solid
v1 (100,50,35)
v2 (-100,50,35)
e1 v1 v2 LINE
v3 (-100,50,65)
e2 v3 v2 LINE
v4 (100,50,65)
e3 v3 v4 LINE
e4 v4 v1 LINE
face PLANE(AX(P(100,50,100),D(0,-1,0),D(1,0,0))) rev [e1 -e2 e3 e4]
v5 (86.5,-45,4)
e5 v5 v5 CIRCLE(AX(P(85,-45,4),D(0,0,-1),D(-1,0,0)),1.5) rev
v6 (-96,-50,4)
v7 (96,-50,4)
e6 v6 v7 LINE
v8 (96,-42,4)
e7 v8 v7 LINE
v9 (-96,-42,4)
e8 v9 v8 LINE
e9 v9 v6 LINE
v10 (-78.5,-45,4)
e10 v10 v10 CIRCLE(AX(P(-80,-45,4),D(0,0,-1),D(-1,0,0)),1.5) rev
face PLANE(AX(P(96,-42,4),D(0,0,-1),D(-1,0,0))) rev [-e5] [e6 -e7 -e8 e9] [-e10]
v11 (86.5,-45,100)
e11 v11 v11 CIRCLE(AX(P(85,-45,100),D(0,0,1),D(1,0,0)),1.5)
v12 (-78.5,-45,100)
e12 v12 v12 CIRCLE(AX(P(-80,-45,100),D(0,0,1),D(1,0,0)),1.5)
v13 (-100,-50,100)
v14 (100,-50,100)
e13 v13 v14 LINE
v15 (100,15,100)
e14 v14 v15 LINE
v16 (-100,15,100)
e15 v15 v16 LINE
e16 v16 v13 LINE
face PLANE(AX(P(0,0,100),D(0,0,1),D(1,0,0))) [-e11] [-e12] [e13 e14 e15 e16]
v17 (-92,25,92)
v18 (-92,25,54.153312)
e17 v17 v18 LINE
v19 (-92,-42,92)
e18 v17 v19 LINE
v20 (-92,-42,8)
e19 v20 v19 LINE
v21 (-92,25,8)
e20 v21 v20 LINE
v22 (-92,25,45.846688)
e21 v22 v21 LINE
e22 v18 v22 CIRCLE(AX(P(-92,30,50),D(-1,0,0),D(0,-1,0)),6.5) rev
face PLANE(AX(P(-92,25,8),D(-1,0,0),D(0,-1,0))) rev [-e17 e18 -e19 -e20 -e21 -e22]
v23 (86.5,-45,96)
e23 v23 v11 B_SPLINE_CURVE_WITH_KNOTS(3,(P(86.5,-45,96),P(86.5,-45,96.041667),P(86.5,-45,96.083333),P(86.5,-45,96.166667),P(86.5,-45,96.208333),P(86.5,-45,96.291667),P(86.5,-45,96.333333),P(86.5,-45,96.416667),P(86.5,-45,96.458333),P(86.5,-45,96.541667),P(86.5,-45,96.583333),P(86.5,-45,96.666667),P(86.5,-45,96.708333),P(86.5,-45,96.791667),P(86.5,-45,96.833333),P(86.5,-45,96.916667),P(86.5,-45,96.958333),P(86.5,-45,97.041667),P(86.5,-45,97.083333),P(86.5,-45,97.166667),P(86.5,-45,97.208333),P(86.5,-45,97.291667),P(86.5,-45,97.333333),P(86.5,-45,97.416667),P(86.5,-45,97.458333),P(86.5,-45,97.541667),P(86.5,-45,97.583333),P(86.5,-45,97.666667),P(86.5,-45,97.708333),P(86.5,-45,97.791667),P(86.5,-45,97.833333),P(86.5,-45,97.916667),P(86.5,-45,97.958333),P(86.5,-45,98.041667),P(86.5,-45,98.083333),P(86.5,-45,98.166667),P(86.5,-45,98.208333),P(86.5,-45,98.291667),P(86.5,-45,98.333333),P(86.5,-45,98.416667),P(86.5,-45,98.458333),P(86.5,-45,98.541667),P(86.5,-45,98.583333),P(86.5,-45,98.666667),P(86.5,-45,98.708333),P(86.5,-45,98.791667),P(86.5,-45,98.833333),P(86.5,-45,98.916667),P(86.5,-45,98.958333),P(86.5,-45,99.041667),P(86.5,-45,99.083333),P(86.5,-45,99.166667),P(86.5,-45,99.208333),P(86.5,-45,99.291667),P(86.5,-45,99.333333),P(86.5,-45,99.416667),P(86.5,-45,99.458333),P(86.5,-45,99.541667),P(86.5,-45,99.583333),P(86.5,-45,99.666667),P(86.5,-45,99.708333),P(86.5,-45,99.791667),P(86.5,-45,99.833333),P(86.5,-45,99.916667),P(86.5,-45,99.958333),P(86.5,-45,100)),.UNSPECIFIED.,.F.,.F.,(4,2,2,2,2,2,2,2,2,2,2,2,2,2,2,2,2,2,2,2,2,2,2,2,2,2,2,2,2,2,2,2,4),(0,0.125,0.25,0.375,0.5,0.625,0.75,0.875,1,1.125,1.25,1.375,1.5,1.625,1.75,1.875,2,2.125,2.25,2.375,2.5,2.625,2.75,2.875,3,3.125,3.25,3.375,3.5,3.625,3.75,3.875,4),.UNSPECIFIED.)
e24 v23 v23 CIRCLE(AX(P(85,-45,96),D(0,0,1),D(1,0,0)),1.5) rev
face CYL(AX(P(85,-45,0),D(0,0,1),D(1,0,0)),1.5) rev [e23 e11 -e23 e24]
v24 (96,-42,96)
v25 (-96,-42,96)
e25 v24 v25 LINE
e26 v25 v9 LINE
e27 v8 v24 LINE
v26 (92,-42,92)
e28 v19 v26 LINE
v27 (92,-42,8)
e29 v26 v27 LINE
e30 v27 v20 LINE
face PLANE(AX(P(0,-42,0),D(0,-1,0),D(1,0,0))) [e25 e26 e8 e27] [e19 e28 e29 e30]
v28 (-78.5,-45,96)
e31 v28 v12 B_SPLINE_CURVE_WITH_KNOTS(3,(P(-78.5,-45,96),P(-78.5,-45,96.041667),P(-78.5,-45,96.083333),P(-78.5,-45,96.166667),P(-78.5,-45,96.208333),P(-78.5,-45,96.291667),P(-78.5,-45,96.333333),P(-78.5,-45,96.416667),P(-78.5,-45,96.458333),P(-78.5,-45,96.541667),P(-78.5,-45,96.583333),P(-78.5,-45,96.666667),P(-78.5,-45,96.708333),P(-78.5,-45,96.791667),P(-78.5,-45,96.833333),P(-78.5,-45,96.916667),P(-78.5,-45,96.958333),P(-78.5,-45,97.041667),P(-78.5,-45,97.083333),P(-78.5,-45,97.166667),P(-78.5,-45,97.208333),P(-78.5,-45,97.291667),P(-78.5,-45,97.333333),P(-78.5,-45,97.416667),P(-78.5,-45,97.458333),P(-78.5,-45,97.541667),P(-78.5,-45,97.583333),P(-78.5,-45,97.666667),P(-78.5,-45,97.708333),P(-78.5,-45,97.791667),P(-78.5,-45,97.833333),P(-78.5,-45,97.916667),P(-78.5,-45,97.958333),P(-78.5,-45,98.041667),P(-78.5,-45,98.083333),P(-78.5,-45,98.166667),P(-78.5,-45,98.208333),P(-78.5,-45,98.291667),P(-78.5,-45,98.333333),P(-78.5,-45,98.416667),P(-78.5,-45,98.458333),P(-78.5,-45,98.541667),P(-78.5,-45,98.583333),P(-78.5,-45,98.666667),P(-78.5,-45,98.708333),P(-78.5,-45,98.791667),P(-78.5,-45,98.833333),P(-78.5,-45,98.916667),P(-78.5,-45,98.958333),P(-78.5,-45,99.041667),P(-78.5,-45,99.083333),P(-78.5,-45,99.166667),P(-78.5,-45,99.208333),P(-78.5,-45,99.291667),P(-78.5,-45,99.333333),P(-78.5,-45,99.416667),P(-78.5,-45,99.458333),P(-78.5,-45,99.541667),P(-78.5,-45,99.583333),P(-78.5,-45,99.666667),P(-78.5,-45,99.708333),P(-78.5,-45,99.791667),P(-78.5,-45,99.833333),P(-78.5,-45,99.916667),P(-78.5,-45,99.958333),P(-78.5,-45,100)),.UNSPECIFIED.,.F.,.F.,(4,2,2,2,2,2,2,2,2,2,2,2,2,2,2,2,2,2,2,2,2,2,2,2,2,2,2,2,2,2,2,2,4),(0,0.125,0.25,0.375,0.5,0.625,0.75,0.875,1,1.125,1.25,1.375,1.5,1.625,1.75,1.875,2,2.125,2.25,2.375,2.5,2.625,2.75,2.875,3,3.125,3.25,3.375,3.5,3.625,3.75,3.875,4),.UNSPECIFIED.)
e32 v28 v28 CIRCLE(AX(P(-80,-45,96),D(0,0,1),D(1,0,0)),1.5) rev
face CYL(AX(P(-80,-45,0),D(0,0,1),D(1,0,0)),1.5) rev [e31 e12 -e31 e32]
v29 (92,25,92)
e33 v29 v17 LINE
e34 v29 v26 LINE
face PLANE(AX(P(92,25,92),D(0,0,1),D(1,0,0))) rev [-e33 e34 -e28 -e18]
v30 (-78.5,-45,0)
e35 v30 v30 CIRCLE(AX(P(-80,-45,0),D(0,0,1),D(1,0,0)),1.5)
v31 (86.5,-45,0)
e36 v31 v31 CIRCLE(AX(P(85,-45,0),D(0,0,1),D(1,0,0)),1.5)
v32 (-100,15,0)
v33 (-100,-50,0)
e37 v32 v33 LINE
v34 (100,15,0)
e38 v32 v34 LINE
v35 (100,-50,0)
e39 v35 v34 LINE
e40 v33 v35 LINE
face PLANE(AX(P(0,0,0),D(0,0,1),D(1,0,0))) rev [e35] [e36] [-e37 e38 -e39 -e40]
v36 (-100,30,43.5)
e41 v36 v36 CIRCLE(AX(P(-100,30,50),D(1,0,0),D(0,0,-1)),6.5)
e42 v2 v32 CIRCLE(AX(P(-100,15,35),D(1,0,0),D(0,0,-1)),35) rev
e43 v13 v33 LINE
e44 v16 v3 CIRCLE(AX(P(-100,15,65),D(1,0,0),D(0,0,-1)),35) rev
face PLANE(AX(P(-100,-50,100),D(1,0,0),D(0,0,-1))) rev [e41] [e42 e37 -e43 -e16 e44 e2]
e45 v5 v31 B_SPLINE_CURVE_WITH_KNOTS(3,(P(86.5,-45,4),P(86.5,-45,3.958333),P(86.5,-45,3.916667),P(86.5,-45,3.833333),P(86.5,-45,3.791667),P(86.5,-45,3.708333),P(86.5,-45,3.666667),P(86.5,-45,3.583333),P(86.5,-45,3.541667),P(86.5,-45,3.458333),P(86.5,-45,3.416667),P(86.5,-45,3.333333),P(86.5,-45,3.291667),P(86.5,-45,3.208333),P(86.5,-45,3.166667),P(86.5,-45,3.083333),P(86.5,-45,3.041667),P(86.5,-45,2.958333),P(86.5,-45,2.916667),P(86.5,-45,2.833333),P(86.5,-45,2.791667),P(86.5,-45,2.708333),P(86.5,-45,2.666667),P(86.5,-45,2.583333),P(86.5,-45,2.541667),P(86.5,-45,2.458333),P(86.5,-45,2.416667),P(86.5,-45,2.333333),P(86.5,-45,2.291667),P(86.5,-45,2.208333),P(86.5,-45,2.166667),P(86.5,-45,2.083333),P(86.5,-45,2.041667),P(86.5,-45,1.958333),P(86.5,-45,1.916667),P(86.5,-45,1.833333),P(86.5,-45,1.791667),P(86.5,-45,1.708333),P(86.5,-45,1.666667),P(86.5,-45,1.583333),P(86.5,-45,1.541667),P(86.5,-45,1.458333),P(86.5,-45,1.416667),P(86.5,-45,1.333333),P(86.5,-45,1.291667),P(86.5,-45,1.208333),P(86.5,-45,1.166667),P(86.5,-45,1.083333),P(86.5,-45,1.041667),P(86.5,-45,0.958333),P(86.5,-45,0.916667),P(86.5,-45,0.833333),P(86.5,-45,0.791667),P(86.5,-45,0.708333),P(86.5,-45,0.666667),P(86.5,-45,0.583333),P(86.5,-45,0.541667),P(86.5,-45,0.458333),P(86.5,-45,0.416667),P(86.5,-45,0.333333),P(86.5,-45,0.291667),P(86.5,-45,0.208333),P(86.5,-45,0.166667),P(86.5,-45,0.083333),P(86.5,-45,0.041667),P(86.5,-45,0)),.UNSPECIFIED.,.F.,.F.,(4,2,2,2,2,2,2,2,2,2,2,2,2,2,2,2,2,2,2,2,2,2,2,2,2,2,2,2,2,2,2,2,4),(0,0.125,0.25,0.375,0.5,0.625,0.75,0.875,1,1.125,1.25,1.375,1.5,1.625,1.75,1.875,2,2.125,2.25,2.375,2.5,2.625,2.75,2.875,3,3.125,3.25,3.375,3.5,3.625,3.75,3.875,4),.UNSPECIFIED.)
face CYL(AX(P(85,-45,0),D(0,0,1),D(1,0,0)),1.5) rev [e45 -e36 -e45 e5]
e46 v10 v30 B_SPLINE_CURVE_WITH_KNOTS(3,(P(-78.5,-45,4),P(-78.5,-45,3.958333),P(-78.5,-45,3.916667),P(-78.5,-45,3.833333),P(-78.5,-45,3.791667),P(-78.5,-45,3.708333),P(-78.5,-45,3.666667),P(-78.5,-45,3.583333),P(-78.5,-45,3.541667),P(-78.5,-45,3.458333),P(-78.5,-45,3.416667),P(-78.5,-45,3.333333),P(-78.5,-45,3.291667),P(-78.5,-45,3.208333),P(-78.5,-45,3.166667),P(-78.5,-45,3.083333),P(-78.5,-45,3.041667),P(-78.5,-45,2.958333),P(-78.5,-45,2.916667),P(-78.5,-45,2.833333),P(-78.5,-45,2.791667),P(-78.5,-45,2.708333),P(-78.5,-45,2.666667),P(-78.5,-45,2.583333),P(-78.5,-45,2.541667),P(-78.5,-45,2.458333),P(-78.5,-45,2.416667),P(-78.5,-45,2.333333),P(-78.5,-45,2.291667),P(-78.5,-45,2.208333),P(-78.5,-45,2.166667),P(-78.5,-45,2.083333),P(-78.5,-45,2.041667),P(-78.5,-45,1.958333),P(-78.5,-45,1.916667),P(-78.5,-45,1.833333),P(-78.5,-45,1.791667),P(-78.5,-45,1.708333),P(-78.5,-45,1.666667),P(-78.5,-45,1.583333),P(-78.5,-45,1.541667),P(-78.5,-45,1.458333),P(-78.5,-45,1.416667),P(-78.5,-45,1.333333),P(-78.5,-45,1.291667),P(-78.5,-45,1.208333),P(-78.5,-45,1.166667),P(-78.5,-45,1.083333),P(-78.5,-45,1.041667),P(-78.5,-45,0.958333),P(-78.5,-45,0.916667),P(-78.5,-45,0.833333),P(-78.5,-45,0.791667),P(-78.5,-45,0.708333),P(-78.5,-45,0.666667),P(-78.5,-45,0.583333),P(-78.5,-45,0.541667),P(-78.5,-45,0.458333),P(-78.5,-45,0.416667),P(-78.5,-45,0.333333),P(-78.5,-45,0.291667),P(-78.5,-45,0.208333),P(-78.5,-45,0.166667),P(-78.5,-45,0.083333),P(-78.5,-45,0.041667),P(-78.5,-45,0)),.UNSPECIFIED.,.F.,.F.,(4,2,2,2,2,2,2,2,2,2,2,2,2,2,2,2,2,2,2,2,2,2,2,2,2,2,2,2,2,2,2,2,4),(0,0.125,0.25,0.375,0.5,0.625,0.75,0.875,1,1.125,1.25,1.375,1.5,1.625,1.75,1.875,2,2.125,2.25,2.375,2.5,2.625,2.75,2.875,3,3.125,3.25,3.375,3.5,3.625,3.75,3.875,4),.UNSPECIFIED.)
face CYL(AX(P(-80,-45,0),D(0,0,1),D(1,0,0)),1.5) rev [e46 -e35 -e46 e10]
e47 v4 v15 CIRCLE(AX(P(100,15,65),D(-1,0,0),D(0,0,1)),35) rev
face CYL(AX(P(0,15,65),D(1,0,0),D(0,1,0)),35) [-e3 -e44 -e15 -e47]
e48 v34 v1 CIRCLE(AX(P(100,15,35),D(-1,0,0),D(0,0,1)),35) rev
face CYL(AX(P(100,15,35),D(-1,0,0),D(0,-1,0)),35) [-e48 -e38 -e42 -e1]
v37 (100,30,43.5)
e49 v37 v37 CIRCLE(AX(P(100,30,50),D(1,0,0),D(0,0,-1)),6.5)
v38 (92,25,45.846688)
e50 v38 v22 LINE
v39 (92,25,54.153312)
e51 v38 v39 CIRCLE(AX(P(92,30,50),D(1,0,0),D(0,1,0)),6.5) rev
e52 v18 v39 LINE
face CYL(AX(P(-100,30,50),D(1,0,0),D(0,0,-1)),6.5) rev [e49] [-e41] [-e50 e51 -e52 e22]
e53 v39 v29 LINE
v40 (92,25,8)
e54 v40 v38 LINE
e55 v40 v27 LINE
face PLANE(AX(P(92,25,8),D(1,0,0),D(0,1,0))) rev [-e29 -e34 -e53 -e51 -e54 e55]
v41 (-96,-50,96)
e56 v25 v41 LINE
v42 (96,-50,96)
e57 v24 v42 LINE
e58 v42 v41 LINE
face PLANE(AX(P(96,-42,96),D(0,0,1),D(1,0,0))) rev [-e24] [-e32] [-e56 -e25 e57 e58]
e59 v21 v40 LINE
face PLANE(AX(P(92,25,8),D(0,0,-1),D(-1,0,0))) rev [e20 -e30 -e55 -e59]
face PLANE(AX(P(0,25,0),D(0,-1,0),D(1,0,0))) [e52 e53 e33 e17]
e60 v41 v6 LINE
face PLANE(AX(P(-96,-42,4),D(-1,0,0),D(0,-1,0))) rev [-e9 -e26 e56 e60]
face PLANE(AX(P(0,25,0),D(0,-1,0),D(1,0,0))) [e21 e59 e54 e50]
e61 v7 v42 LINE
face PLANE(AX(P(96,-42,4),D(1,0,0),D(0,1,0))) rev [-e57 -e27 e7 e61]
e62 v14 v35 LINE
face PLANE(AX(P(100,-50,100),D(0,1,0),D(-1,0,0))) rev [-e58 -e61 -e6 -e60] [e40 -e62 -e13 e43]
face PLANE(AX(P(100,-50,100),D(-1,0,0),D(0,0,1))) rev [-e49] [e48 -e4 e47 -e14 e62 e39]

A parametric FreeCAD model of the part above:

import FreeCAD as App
import Part
import Sketcher
from FreeCAD import Vector
Q = App.Units.Quantity


def edges_at(feature, points):
    """Names of the edges that pass closest to the given points."""
    edges = feature.Shape.Edges
    near = lambda p: min(range(len(edges)), key=lambda i: edges[i].distToShape(Part.Vertex(*p))[0])
    return sorted({f"Edge{near(p) + 1}" for p in points})

doc = App.newDocument("Part")
body = doc.addObject("PartDesign::Body", "Body")

sketch1 = body.newObject("Sketcher::SketchObject", "Sketch")
sketch1.AttachmentSupport = (doc.getObject("XY_Plane"), [""])
sketch1.MapMode = "FlatFace"
sketch1.addGeometry([
    Part.LineSegment(Vector(-100, 50, 0), Vector(-100, -50, 0)),
    Part.LineSegment(Vector(-100, -50, 0), Vector(100, -50, 0)),
    Part.LineSegment(Vector(100, -50, 0), Vector(100, 50, 0)),
    Part.LineSegment(Vector(100, 50, 0), Vector(-100, 50, 0)),
], False)
sketch1.addConstraint([
    Sketcher.Constraint("Coincident", 0, 2, 1, 1),
    Sketcher.Constraint("Coincident", 1, 2, 2, 1),
    Sketcher.Constraint("Coincident", 2, 2, 3, 1),
    Sketcher.Constraint("Coincident", 3, 2, 0, 1),
    Sketcher.Constraint("Vertical", 0),
    Sketcher.Constraint("Horizontal", 1),
    Sketcher.Constraint("Vertical", 2),
    Sketcher.Constraint("Horizontal", 3),
    Sketcher.Constraint("Symmetric", 0, 2, 2, 2, -1, 1),
    Sketcher.Constraint("DistanceX", 1, 1, 1, 2, Q("200 mm")),
    Sketcher.Constraint("DistanceY", 0, 2, 0, 1, Q("100 mm")),
])
pad1 = body.newObject("PartDesign::Pad", "Pad")
pad1.Profile = sketch1
pad1.Length = 100

sketch2 = body.newObject("Sketcher::SketchObject", "Sketch001")
sketch2.AttachmentSupport = (doc.getObject("YZ_Plane"), [""])
sketch2.MapMode = "FlatFace"
sketch2.AttachmentOffset = App.Placement(Vector(0, 0, 100), App.Rotation())
sketch2.addGeometry(Part.Circle(Vector(30, 50, 0), Vector(0, 0, 1), 6), False)
sketch2.addConstraint([
    Sketcher.Constraint("Diameter", 0, Q("13 mm")),
    Sketcher.Constraint("DistanceX", -1, 1, 0, 3, Q("30 mm")),
    Sketcher.Constraint("DistanceY", -1, 1, 0, 3, Q("50 mm")),
])
pocket1 = body.newObject("PartDesign::Pocket", "Pocket")
pocket1.Profile = sketch2
pocket1.Type = "ThroughAll"

sketch3 = body.newObject("Sketcher::SketchObject", "Sketch002")
sketch3.AttachmentSupport = (doc.getObject("XY_Plane"), [""])
sketch3.MapMode = "FlatFace"
sketch3.AttachmentOffset = App.Placement(Vector(0, 0, 100), App.Rotation())
sketch3.addGeometry([
    Part.Circle(Vector(85, -45, 0), Vector(0, 0, 1), 1.5),
    Part.Circle(Vector(-80, -45, 0), Vector(0, 0, 1), 1.5),
], False)
sketch3.addConstraint([
    Sketcher.Constraint("Equal", 0, 1),
    Sketcher.Constraint("Horizontal", 0, 3, 1, 3),
    Sketcher.Constraint("Diameter", 0, Q("3 mm")),
    Sketcher.Constraint("DistanceX", -1, 1, 0, 3, Q("85 mm")),
    Sketcher.Constraint("DistanceY", 0, 3, -1, 1, Q("45 mm")),
    Sketcher.Constraint("DistanceX", 1, 3, -1, 1, Q("80 mm")),
])
pocket2 = body.newObject("PartDesign::Pocket", "Pocket001")
pocket2.Profile = sketch3
pocket2.Type = "ThroughAll"

sketch4 = body.newObject("Sketcher::SketchObject", "Sketch003")
sketch4.AttachmentSupport = (doc.getObject("XZ_Plane"), [""])
sketch4.MapMode = "FlatFace"
sketch4.AttachmentOffset = App.Placement(Vector(0, 0, 50), App.Rotation())
sketch4.addGeometry([
    Part.LineSegment(Vector(-92, 92, 0), Vector(-92, 8, 0)),
    Part.LineSegment(Vector(-92, 8, 0), Vector(92, 8, 0)),
    Part.LineSegment(Vector(92, 8, 0), Vector(92, 92, 0)),
    Part.LineSegment(Vector(92, 92, 0), Vector(-92, 92, 0)),
], False)
sketch4.addConstraint([
    Sketcher.Constraint("Coincident", 0, 2, 1, 1),
    Sketcher.Constraint("Coincident", 1, 2, 2, 1),
    Sketcher.Constraint("Coincident", 2, 2, 3, 1),
    Sketcher.Constraint("Coincident", 3, 2, 0, 1),
    Sketcher.Constraint("Vertical", 0),
    Sketcher.Constraint("Horizontal", 1),
    Sketcher.Constraint("Vertical", 2),
    Sketcher.Constraint("Horizontal", 3),
    Sketcher.Constraint("DistanceX", 1, 1, 1, 2, Q("184 mm")),
    Sketcher.Constraint("DistanceY", 0, 2, 0, 1, Q("84 mm")),
    Sketcher.Constraint("DistanceX", 0, 2, -1, 1, Q("92 mm")),
    Sketcher.Constraint("DistanceY", -1, 1, 0, 2, Q("8 mm")),
])
pocket3 = body.newObject("PartDesign::Pocket", "Pocket002")
pocket3.Profile = sketch4
pocket3.Length = 75

sketch5 = body.newObject("Sketcher::SketchObject", "Sketch004")
sketch5.AttachmentSupport = (doc.getObject("XZ_Plane"), [""])
sketch5.MapMode = "FlatFace"
sketch5.AttachmentOffset = App.Placement(Vector(0, 0, 50), App.Rotation())
sketch5.addGeometry([
    Part.LineSegment(Vector(-96, 96, 0), Vector(-96, 4, 0)),
    Part.LineSegment(Vector(-96, 4, 0), Vector(96, 4, 0)),
    Part.LineSegment(Vector(96, 4, 0), Vector(96, 96, 0)),
    Part.LineSegment(Vector(96, 96, 0), Vector(-96, 96, 0)),
], False)
sketch5.addConstraint([
    Sketcher.Constraint("Coincident", 0, 2, 1, 1),
    Sketcher.Constraint("Coincident", 1, 2, 2, 1),
    Sketcher.Constraint("Coincident", 2, 2, 3, 1),
    Sketcher.Constraint("Coincident", 3, 2, 0, 1),
    Sketcher.Constraint("Vertical", 0),
    Sketcher.Constraint("Horizontal", 1),
    Sketcher.Constraint("Vertical", 2),
    Sketcher.Constraint("Horizontal", 3),
    Sketcher.Constraint("DistanceX", 1, 1, 1, 2, Q("192 mm")),
    Sketcher.Constraint("DistanceY", 0, 2, 0, 1, Q("92 mm")),
    Sketcher.Constraint("DistanceX", 0, 2, -1, 1, Q("96 mm")),
    Sketcher.Constraint("DistanceY", -1, 1, 0, 2, Q("4 mm")),
])
pocket4 = body.newObject("PartDesign::Pocket", "Pocket003")
pocket4.Profile = sketch5
pocket4.Length = 8
doc.recompute()

fillet = body.newObject("PartDesign::Fillet", "Fillet")
fillet.Base = (pocket4, edges_at(pocket4, [(0, 50, 100), (0, 50, 0)]))
fillet.Radius = 35

doc.recompute()
